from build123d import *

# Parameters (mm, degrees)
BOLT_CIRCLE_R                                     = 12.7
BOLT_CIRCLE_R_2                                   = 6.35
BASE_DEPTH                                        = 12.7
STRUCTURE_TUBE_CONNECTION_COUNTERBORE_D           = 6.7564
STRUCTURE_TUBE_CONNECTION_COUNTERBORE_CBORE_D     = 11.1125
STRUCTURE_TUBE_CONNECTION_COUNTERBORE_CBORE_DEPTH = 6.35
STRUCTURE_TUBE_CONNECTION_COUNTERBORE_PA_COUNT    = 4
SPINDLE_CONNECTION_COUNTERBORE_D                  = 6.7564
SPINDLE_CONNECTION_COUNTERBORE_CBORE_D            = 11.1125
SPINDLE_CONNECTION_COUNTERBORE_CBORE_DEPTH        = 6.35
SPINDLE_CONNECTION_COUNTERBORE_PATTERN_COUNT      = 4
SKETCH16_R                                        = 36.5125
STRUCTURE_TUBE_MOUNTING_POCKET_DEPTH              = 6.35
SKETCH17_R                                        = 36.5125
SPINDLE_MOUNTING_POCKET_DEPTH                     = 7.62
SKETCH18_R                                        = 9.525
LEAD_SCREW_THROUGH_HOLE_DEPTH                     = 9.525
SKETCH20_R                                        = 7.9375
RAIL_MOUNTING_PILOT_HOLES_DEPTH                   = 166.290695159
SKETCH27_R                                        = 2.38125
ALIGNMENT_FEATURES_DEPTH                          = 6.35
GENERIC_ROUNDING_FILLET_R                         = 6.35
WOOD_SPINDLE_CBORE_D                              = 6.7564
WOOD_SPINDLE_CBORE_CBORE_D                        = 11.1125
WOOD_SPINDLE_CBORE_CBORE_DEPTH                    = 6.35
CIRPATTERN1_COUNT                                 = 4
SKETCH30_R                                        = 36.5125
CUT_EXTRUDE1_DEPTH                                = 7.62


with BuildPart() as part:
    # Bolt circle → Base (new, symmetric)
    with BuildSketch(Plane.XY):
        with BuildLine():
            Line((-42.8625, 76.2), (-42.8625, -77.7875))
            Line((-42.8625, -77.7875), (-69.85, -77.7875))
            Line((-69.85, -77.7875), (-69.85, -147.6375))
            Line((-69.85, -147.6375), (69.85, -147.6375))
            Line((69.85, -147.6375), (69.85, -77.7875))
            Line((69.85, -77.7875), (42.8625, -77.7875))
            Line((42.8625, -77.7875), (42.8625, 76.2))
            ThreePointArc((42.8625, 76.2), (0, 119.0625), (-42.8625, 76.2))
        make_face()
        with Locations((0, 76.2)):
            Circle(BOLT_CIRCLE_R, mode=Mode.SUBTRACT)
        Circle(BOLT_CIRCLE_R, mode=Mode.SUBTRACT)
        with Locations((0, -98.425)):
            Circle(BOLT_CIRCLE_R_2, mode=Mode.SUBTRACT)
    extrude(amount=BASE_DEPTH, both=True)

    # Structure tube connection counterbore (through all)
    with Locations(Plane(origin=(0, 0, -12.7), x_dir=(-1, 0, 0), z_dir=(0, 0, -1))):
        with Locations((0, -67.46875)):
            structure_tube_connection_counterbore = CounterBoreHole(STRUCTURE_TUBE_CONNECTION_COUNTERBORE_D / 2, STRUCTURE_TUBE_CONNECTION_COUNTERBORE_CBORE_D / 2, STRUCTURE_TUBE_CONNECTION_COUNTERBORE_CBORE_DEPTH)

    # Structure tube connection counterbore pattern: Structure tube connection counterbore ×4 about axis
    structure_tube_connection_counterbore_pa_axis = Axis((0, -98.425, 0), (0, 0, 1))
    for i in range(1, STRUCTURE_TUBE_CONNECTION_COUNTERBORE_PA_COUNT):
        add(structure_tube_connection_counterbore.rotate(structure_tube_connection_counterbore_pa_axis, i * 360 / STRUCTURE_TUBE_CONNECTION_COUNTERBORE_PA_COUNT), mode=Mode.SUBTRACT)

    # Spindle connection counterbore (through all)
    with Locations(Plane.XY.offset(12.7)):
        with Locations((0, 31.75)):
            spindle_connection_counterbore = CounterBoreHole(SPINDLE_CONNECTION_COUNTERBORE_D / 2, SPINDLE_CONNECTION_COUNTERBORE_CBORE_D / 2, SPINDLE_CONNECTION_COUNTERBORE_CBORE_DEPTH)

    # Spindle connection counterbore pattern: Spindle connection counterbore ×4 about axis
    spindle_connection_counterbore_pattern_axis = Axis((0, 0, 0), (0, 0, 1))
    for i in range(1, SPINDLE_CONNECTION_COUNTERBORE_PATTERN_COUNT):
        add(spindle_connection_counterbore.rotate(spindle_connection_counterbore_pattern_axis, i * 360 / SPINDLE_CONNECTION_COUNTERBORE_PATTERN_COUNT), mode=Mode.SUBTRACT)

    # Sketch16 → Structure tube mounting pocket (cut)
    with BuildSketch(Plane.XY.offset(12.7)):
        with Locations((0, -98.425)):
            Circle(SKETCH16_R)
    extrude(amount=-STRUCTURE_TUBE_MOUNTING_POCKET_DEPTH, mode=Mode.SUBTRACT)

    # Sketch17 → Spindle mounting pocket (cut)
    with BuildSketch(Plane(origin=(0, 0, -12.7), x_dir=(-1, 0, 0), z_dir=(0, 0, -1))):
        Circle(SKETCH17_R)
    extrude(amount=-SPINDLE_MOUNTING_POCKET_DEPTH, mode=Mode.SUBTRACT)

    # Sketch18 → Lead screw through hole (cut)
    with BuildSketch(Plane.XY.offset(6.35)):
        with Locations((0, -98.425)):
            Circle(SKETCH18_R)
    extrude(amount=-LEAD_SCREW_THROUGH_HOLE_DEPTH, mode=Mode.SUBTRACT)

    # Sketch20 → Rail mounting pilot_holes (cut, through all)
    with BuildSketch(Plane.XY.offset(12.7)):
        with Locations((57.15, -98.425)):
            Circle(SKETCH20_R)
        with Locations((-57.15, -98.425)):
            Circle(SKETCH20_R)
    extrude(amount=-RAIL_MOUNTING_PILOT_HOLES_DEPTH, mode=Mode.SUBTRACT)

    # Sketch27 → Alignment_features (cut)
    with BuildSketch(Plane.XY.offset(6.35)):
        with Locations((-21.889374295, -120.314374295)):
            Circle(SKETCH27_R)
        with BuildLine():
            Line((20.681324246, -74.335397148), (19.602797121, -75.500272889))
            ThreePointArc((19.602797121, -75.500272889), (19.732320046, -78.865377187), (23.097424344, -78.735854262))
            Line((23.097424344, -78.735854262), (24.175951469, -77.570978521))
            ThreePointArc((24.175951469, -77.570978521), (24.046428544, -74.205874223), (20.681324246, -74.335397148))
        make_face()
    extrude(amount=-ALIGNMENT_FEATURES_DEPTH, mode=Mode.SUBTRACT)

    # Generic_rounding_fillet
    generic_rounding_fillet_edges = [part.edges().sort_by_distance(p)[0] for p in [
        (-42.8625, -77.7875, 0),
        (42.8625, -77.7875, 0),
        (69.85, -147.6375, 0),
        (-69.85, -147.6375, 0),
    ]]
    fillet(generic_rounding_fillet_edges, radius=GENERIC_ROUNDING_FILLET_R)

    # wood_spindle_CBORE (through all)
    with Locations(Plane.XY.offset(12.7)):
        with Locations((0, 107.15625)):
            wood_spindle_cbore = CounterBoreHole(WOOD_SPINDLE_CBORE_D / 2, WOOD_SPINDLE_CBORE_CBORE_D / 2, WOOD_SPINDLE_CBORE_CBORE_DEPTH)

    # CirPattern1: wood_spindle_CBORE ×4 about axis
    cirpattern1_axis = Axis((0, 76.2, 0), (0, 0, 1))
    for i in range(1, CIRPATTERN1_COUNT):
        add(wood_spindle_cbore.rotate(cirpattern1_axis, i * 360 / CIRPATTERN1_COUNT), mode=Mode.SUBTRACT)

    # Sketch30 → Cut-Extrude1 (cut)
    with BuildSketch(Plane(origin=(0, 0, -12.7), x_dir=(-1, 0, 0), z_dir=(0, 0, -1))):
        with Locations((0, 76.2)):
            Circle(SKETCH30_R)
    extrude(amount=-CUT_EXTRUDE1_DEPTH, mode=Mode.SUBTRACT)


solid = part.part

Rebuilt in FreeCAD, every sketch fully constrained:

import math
import FreeCAD as App
import Part
import Sketcher

V = App.Vector
Q = App.Units.Quantity


def edges_at(feature, points):
    """Names of the edges that pass closest to the given points."""
    edges = feature.Shape.Edges
    near = lambda p: min(range(len(edges)), key=lambda i: edges[i].distToShape(Part.Vertex(*p))[0])
    return sorted({f"Edge{near(p) + 1}" for p in points})

doc = App.newDocument("Part")
body = doc.addObject("PartDesign::Body", "Body")

sketch1 = doc.addObject("Sketcher::SketchObject", "Sketch")
body.addObject(sketch1)
sketch1.AttachmentSupport = (doc.XY_Plane, [""])
sketch1.MapMode = "FlatFace"
sketch1.addGeometry([
    Part.LineSegment(V(-43, 76, 0), V(-43, -78, 0)),
    Part.LineSegment(V(-43, -78, 0), V(-70, -78, 0)),
    Part.LineSegment(V(-70, -78, 0), V(-70, -148, 0)),
    Part.LineSegment(V(-70, -148, 0), V(70, -148, 0)),
    Part.LineSegment(V(70, -148, 0), V(70, -78, 0)),
    Part.LineSegment(V(70, -78, 0), V(43, -78, 0)),
    Part.LineSegment(V(43, -78, 0), V(43, 76, 0)),
    Part.ArcOfCircle(Part.Circle(V(0, 76, 0), V(0, 0, 1), 43), math.radians(0), math.radians(180)),
    Part.Circle(V(0, -98, 0), V(0, 0, 1), 6),
    Part.Circle(V(0, 0, 0), V(0, 0, 1), 13),
    Part.Circle(V(0, 76, 0), V(0, 0, 1), 13),
], False)
sketch1.addConstraint([
    Sketcher.Constraint("Coincident", 0, 2, 1, 1),
    Sketcher.Constraint("Coincident", 1, 2, 2, 1),
    Sketcher.Constraint("Coincident", 2, 2, 3, 1),
    Sketcher.Constraint("Coincident", 3, 2, 4, 1),
    Sketcher.Constraint("Coincident", 4, 2, 5, 1),
    Sketcher.Constraint("Coincident", 5, 2, 6, 1),
    Sketcher.Constraint("Tangent", 6, 2, 7, 1),
    Sketcher.Constraint("Tangent", 7, 2, 0, 1),
    Sketcher.Constraint("Vertical", 0),
    Sketcher.Constraint("Horizontal", 1),
    Sketcher.Constraint("Vertical", 2),
    Sketcher.Constraint("Horizontal", 3),
    Sketcher.Constraint("Vertical", 4),
    Sketcher.Constraint("Horizontal", 5),
    Sketcher.Constraint("Vertical", 6),
    Sketcher.Constraint("Coincident", 9, 3, -1, 1),
    Sketcher.Constraint("Coincident", 10, 3, 7, 3),
    Sketcher.Constraint("Equal", 9, 10),
    Sketcher.Constraint("Symmetric", 1, 2, 4, 2, -2),
    Sketcher.Constraint("PointOnObject", 7, 3, -2),
    Sketcher.Constraint("PointOnObject", 8, 3, -2),
    Sketcher.Constraint("Diameter", 9, Q("1 in")),
    Sketcher.Constraint("Diameter", 8, Q("0.5 in")),
    Sketcher.Constraint("DistanceX", 3, 1, 3, 2, Q("5.5 in")),
    Sketcher.Constraint("DistanceY", -1, 1, 7, 3, Q("3 in")),
    Sketcher.Constraint("Radius", 7, Q("1.6875 in")),
    Sketcher.Constraint("DistanceY", 2, 2, 2, 1, Q("2.75 in")),
    Sketcher.Constraint("DistanceY", 0, 2, 0, 1, Q("6.0625 in")),
    Sketcher.Constraint("DistanceY", 8, 3, -1, 1, Q("3.875 in")),
])
pad1 = doc.addObject("PartDesign::Pad", "Pad")
body.addObject(pad1)
pad1.Profile = sketch1
pad1.Length = Q("1 in")
pad1.Midplane = True

sketch2 = doc.addObject("Sketcher::SketchObject", "Sketch001")
body.addObject(sketch2)
sketch2.AttachmentSupport = (doc.XY_Plane, [""])
sketch2.MapMode = "FlatFace"
sketch2.AttachmentOffset = App.Placement(V(0, 0, -0.5 * 25.4), App.Rotation())
sketch2.addGeometry(Part.Circle(V(0, -67.5, 0), V(0, 0, 1), 3.4), False)
sketch2.addConstraint([
    Sketcher.Constraint("PointOnObject", 0, 3, -2),
    Sketcher.Constraint("Diameter", 0, Q("0.266 in")),
    Sketcher.Constraint("DistanceY", 0, 3, -1, 1, Q("2.65625 in")),
])
doc.recompute()
hole = doc.addObject("PartDesign::Hole", "Hole")
body.addObject(hole)
hole.Profile = sketch2
hole.ThreadType = "None"
hole.Diameter = Q("0.266 in")
hole.DepthType = "ThroughAll"
hole.HoleCutType = "Counterbore"
hole.HoleCutDiameter = Q("0.4375 in")
hole.HoleCutDepth = Q("0.25 in")
hole.Reversed = True
doc.recompute()

datumline = doc.addObject("PartDesign::Line", "DatumLine")
body.addObject(datumline)
datumline.Placement = App.Placement(V(0, -98.425, 0), App.Rotation(V(0, 0, 1), V(0, 0, 1)))
polarpattern = doc.addObject("PartDesign::PolarPattern", "PolarPattern")
body.addObject(polarpattern)
polarpattern.Originals = [hole]
polarpattern.Axis = (datumline, [""])
polarpattern.Angle = 360
polarpattern.Occurrences = 4
body.Tip = polarpattern

sketch3 = doc.addObject("Sketcher::SketchObject", "Sketch002")
body.addObject(sketch3)
sketch3.AttachmentSupport = (doc.XY_Plane, [""])
sketch3.MapMode = "FlatFace"
sketch3.AttachmentOffset = App.Placement(V(0, 0, 0.5 * 25.4), App.Rotation())
sketch3.addGeometry(Part.Circle(V(0, 31.8, 0), V(0, 0, 1), 3.4), False)
sketch3.addConstraint([
    Sketcher.Constraint("PointOnObject", 0, 3, -2),
    Sketcher.Constraint("Diameter", 0, Q("0.266 in")),
    Sketcher.Constraint("DistanceY", -1, 1, 0, 3, Q("1.25 in")),
])
doc.recompute()
hole2 = doc.addObject("PartDesign::Hole", "Hole001")
body.addObject(hole2)
hole2.Profile = sketch3
hole2.ThreadType = "None"
hole2.Diameter = Q("0.266 in")
hole2.DepthType = "ThroughAll"
hole2.HoleCutType = "Counterbore"
hole2.HoleCutDiameter = Q("0.4375 in")
hole2.HoleCutDepth = Q("0.25 in")
doc.recompute()

polarpattern2 = doc.addObject("PartDesign::PolarPattern", "PolarPattern001")
body.addObject(polarpattern2)
polarpattern2.Originals = [hole2]
polarpattern2.Axis = (doc.Z_Axis, [""])
polarpattern2.Angle = 360
polarpattern2.Occurrences = 4
body.Tip = polarpattern2

sketch4 = doc.addObject("Sketcher::SketchObject", "Sketch003")
body.addObject(sketch4)
sketch4.AttachmentSupport = (doc.XY_Plane, [""])
sketch4.MapMode = "FlatFace"
sketch4.AttachmentOffset = App.Placement(V(0, 0, 0.5 * 25.4), App.Rotation())
sketch4.addGeometry(Part.Circle(V(0, -98, 0), V(0, 0, 1), 37), False)
sketch4.addConstraint([
    Sketcher.Constraint("PointOnObject", 0, 3, -2),
    Sketcher.Constraint("Diameter", 0, Q("2.875 in")),
    Sketcher.Constraint("DistanceY", 0, 3, -1, 1, Q("3.875 in")),
])
pocket1 = doc.addObject("PartDesign::Pocket", "Pocket")
body.addObject(pocket1)
pocket1.Profile = sketch4
pocket1.Length = Q("0.25 in")

sketch5 = doc.addObject("Sketcher::SketchObject", "Sketch004")
body.addObject(sketch5)
sketch5.AttachmentSupport = (doc.XY_Plane, [""])
sketch5.MapMode = "FlatFace"
sketch5.AttachmentOffset = App.Placement(V(0, 0, -0.5 * 25.4), App.Rotation())
sketch5.addGeometry(Part.Circle(V(0, 0, 0), V(0, 0, 1), 37), False)
sketch5.addConstraint([
    Sketcher.Constraint("Coincident", 0, 3, -1, 1),
    Sketcher.Constraint("Diameter", 0, Q("2.875 in")),
])
pocket2 = doc.addObject("PartDesign::Pocket", "Pocket001")
body.addObject(pocket2)
pocket2.Profile = sketch5
pocket2.Length = Q("0.3 in")
pocket2.Reversed = True

sketch6 = doc.addObject("Sketcher::SketchObject", "Sketch005")
body.addObject(sketch6)
sketch6.AttachmentSupport = (doc.XY_Plane, [""])
sketch6.MapMode = "FlatFace"
sketch6.AttachmentOffset = App.Placement(V(0, 0, 0.25 * 25.4), App.Rotation())
sketch6.addGeometry(Part.Circle(V(0, -98, 0), V(0, 0, 1), 10), False)
sketch6.addConstraint([
    Sketcher.Constraint("PointOnObject", 0, 3, -2),
    Sketcher.Constraint("Diameter", 0, Q("0.75 in")),
    Sketcher.Constraint("DistanceY", 0, 3, -1, 1, Q("3.875 in")),
])
pocket3 = doc.addObject("PartDesign::Pocket", "Pocket002")
body.addObject(pocket3)
pocket3.Profile = sketch6
pocket3.Length = Q("0.375 in")

sketch7 = doc.addObject("Sketcher::SketchObject", "Sketch006")
body.addObject(sketch7)
sketch7.AttachmentSupport = (doc.XY_Plane, [""])
sketch7.MapMode = "FlatFace"
sketch7.AttachmentOffset = App.Placement(V(0, 0, 0.5 * 25.4), App.Rotation())
sketch7.addGeometry([
    Part.Circle(V(57, -98, 0), V(0, 0, 1), 8),
    Part.Circle(V(-57, -98, 0), V(0, 0, 1), 8),
], False)
sketch7.addConstraint([
    Sketcher.Constraint("Equal", 0, 1),
    Sketcher.Constraint("Symmetric", 0, 3, 1, 3, -2),
    Sketcher.Constraint("Diameter", 0, Q("0.625 in")),
    Sketcher.Constraint("DistanceX", 1, 3, 0, 3, Q("4.5 in")),
    Sketcher.Constraint("DistanceY", 0, 3, -1, 1, Q("3.875 in")),
])
pocket4 = doc.addObject("PartDesign::Pocket", "Pocket003")
body.addObject(pocket4)
pocket4.Profile = sketch7
pocket4.Type = "ThroughAll"

sketch8 = doc.addObject("Sketcher::SketchObject", "Sketch007")
body.addObject(sketch8)
sketch8.AttachmentSupport = (doc.XY_Plane, [""])
sketch8.MapMode = "FlatFace"
sketch8.AttachmentOffset = App.Placement(V(0, 0, 0.25 * 25.4), App.Rotation())
sketch8.addGeometry([
    Part.Circle(V(-21.9, -120.3, 0), V(0, 0, 1), 2.4),
    Part.LineSegment(V(20.7, -74.3, 0), V(19.6, -75.5, 0)),
    Part.ArcOfCircle(Part.Circle(V(21.4, -77.1, 0), V(0, 0, 1), 2.4), math.radians(137), math.radians(317)),
    Part.LineSegment(V(23.1, -78.7, 0), V(24.2, -77.6, 0)),
    Part.ArcOfCircle(Part.Circle(V(22.4, -76, 0), V(0, 0, 1), 2.4), math.radians(-43), math.radians(137)),
], False)
sketch8.addConstraint([
    Sketcher.Constraint("Tangent", 1, 2, 2, 1),
    Sketcher.Constraint("Tangent", 2, 2, 3, 1),
    Sketcher.Constraint("Tangent", 3, 2, 4, 1),
    Sketcher.Constraint("Tangent", 4, 2, 1, 1),
    Sketcher.Constraint("Equal", 0, 2),
    Sketcher.Constraint("Equal", 2, 4),
    Sketcher.Constraint("Diameter", 0, Q("0.1875 in")),
    Sketcher.Constraint("Distance", 1, Q("0.0625 in")),
    Sketcher.Constraint("DistanceY", 0, 3, 1, 2, 44.814101),
    Sketcher.Constraint("DistanceX", 0, 3, 2, 2, 44.986799),
    Sketcher.Constraint("DistanceX", 4, 2, 2, 2, 2.4161),
    Sketcher.Constraint("DistanceX", -1, 1, 2, 3, 21.350111),
    Sketcher.Constraint("DistanceY", 3, 2, -1, 1, 77.570979),
])
pocket5 = doc.addObject("PartDesign::Pocket", "Pocket004")
body.addObject(pocket5)
pocket5.Profile = sketch8
pocket5.Length = Q("0.25 in")
doc.recompute()

fillet = doc.addObject("PartDesign::Fillet", "Fillet")
body.addObject(fillet)
fillet.Base = (pocket5, edges_at(pocket5, [
    (-42.862, -77.787, 0),
    (42.862, -77.787, 0),
    (69.85, -147.637, 0),
    (-69.85, -147.637, 0),
]))
fillet.Radius = Q("0.25 in")

sketch9 = doc.addObject("Sketcher::SketchObject", "Sketch008")
body.addObject(sketch9)
sketch9.AttachmentSupport = (doc.XY_Plane, [""])
sketch9.MapMode = "FlatFace"
sketch9.AttachmentOffset = App.Placement(V(0, 0, 0.5 * 25.4), App.Rotation())
sketch9.addGeometry(Part.Circle(V(0, 107.2, 0), V(0, 0, 1), 3.4), False)
sketch9.addConstraint([
    Sketcher.Constraint("PointOnObject", 0, 3, -2),
    Sketcher.Constraint("Diameter", 0, Q("0.266 in")),
    Sketcher.Constraint("DistanceY", -1, 1, 0, 3, Q("4.21875 in")),
])
doc.recompute()
hole3 = doc.addObject("PartDesign::Hole", "Hole002")
body.addObject(hole3)
hole3.Profile = sketch9
hole3.ThreadType = "None"
hole3.Diameter = Q("0.266 in")
hole3.DepthType = "ThroughAll"
hole3.HoleCutType = "Counterbore"
hole3.HoleCutDiameter = Q("0.4375 in")
hole3.HoleCutDepth = Q("0.25 in")
doc.recompute()

datumline2 = doc.addObject("PartDesign::Line", "DatumLine001")
body.addObject(datumline2)
datumline2.Placement = App.Placement(V(0, 76.2, 0), App.Rotation(V(0, 0, 1), V(0, 0, 1)))
polarpattern3 = doc.addObject("PartDesign::PolarPattern", "PolarPattern002")
body.addObject(polarpattern3)
polarpattern3.Originals = [hole3]
polarpattern3.Axis = (datumline2, [""])
polarpattern3.Angle = 360
polarpattern3.Occurrences = 4
body.Tip = polarpattern3

sketch10 = doc.addObject("Sketcher::SketchObject", "Sketch009")
body.addObject(sketch10)
sketch10.AttachmentSupport = (doc.XY_Plane, [""])
sketch10.MapMode = "FlatFace"
sketch10.AttachmentOffset = App.Placement(V(0, 0, -0.5 * 25.4), App.Rotation())
sketch10.addGeometry(Part.Circle(V(0, 76, 0), V(0, 0, 1), 37), False)
sketch10.addConstraint([
    Sketcher.Constraint("PointOnObject", 0, 3, -2),
    Sketcher.Constraint("Diameter", 0, Q("2.875 in")),
    Sketcher.Constraint("DistanceY", -1, 1, 0, 3, Q("3 in")),
])
pocket6 = doc.addObject("PartDesign::Pocket", "Pocket005")
body.addObject(pocket6)
pocket6.Profile = sketch10
pocket6.Length = Q("0.3 in")
pocket6.Reversed = True

doc.recompute()
